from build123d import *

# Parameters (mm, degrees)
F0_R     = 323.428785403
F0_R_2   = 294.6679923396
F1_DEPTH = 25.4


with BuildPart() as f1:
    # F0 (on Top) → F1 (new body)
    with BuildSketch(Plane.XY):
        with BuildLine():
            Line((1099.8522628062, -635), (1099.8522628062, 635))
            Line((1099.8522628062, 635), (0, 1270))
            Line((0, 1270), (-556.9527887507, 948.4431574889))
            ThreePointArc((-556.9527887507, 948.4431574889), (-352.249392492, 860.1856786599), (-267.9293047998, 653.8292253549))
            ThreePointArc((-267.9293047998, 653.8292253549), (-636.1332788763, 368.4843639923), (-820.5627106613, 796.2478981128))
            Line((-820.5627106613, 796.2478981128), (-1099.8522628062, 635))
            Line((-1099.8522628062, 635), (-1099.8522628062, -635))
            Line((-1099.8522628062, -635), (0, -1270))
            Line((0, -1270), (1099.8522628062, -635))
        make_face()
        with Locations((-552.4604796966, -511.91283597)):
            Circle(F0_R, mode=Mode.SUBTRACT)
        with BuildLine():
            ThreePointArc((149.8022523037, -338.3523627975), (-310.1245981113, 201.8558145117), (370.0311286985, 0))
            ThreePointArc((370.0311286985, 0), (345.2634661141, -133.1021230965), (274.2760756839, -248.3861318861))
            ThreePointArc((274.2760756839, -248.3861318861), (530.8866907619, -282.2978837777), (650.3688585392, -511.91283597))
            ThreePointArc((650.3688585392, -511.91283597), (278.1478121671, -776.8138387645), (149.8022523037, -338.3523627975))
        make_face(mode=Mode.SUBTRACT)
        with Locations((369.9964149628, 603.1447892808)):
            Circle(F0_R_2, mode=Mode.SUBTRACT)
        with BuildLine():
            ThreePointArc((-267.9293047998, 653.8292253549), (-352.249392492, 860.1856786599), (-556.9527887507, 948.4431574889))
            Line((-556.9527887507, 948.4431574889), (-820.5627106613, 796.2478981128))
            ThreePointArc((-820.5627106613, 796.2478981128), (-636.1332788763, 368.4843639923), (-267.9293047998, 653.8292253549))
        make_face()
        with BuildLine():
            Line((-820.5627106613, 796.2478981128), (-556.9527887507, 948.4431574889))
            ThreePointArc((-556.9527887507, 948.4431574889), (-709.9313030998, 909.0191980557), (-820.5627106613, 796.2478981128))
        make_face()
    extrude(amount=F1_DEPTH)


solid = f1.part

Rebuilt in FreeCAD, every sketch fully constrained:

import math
import FreeCAD as App
import Part
import Sketcher
Q = App.Units.Quantity

doc = App.newDocument("Part")
body = doc.addObject("PartDesign::Body", "Body")

sketch1 = body.newObject("Sketcher::SketchObject", "Sketch")
sketch1.AttachmentSupport = (doc.getObject("XY_Plane"), [""])
sketch1.MapMode = "FlatFace"
sketch1.addGeometry(Part.LineSegment(App.Vector(1100, -635, 0), App.Vector(1100, 635, 0)), False)
sketch1.addGeometry(Part.LineSegment(App.Vector(1100, 635, 0), App.Vector(0, 1270, 0)), False)
sketch1.addGeometry(Part.LineSegment(App.Vector(0, 1270, 0), App.Vector(-557, 948, 0)), False)
sketch1.addGeometry(Part.ArcOfCircle(Part.Circle(App.Vector(-563, 654, 0), App.Vector(0, 0, 1), 295), math.radians(89), math.radians(151)), False)
sketch1.addGeometry(Part.LineSegment(App.Vector(-821, 796, 0), App.Vector(-1100, 635, 0)), False)
sketch1.addGeometry(Part.LineSegment(App.Vector(-1100, 635, 0), App.Vector(-1100, -635, 0)), False)
sketch1.addGeometry(Part.LineSegment(App.Vector(-1100, -635, 0), App.Vector(0, -1270, 0)), False)
sketch1.addGeometry(Part.LineSegment(App.Vector(0, -1270, 0), App.Vector(1100, -635, 0)), False)
sketch1.addGeometry(Part.Circle(App.Vector(-552, -512, 0), App.Vector(0, 0, 1), 323), False)
sketch1.addGeometry(Part.ArcOfCircle(Part.Circle(App.Vector(370, -512, 0), App.Vector(0, 0, 1), 280), math.radians(142), math.radians(470)), False)
sketch1.addGeometry(Part.ArcOfCircle(Part.Circle(App.Vector(0, 0, 0), App.Vector(0, 0, 1), 370), math.radians(-42), math.radians(294)), False)
sketch1.addGeometry(Part.Circle(App.Vector(370, 603, 0), App.Vector(0, 0, 1), 295), False)
sketch1.addConstraint(Sketcher.Constraint("Coincident", 0, 2, 1, 1))
sketch1.addConstraint(Sketcher.Constraint("Coincident", 1, 2, 2, 1))
sketch1.addConstraint(Sketcher.Constraint("Coincident", 2, 2, 3, 1))
sketch1.addConstraint(Sketcher.Constraint("Coincident", 3, 2, 4, 1))
sketch1.addConstraint(Sketcher.Constraint("Coincident", 4, 2, 5, 1))
sketch1.addConstraint(Sketcher.Constraint("Coincident", 5, 2, 6, 1))
sketch1.addConstraint(Sketcher.Constraint("Coincident", 6, 2, 7, 1))
sketch1.addConstraint(Sketcher.Constraint("Coincident", 7, 2, 0, 1))
sketch1.addConstraint(Sketcher.Constraint("Coincident", 9, 1, 10, 2))
sketch1.addConstraint(Sketcher.Constraint("Coincident", 10, 1, 9, 2))
sketch1.addConstraint(Sketcher.Constraint("Vertical", 0))
sketch1.addConstraint(Sketcher.Constraint("Vertical", 5))
sketch1.addConstraint(Sketcher.Constraint("Coincident", 10, 3, -1, 1))
sketch1.addConstraint(Sketcher.Constraint("Symmetric", 0, 2, 5, 2, -1, 1))
sketch1.addConstraint(Sketcher.Constraint("Symmetric", 1, 2, 6, 2, -1, 1))
sketch1.addConstraint(Sketcher.Constraint("PointOnObject", 1, 2, -2))
sketch1.addConstraint(Sketcher.Constraint("Parallel", 2, 4))
sketch1.addConstraint(Sketcher.Constraint("Parallel", 4, 7))
sketch1.addConstraint(Sketcher.Constraint("Horizontal", 8, 3, 9, 3))
sketch1.addConstraint(Sketcher.Constraint("Horizontal", 0, 2, 4, 2))
sketch1.addConstraint(Sketcher.Constraint("Horizontal", 5, 2, 7, 2))
sketch1.addConstraint(Sketcher.Constraint("Vertical", 9, 3, 11, 3))
sketch1.addConstraint(Sketcher.Constraint("DistanceY", 0, 1, 0, 2, Q("50 in")))
sketch1.addConstraint(Sketcher.Constraint("Distance", 1, Q("50 in")))
sketch1.addConstraint(Sketcher.Constraint("DistanceY", -1, 1, 1, 2, Q("50 in")))
sketch1.addConstraint(Sketcher.Constraint("Radius", 3, Q("294.667999 mm")))
sketch1.addConstraint(Sketcher.Constraint("Diameter", 8, Q("646.857571 mm")))
sketch1.addConstraint(Sketcher.Constraint("Radius", 10, Q("370.031129 mm")))
sketch1.addConstraint(Sketcher.Constraint("Diameter", 11, Q("589.335985 mm")))
sketch1.addConstraint(Sketcher.Constraint("DistanceX", 3, 3, -1, 1, Q("22.1495001 in")))
sketch1.addConstraint(Sketcher.Constraint("Radius", 9, Q("280.372444 mm")))
sketch1.addConstraint(Sketcher.Constraint("DistanceX", 8, 3, -1, 1, Q("552.46048 mm")))
sketch1.addConstraint(Sketcher.Constraint("DistanceY", -1, 1, 11, 3, Q("603.144789 mm")))
sketch1.addConstraint(Sketcher.Constraint("DistanceX", 2, 2, -1, 1, Q("556.952789 mm")))
sketch1.addConstraint(Sketcher.Constraint("DistanceY", 10, 1, -1, 1, Q("248.386132 mm")))
sketch1.addConstraint(Sketcher.Constraint("DistanceY", 8, 3, 3, 3, Q("1165.742061 mm")))
pad1 = body.newObject("PartDesign::Pad", "Pad")
pad1.Profile = sketch1
pad1.Length = Q("1 in")

doc.recompute()
